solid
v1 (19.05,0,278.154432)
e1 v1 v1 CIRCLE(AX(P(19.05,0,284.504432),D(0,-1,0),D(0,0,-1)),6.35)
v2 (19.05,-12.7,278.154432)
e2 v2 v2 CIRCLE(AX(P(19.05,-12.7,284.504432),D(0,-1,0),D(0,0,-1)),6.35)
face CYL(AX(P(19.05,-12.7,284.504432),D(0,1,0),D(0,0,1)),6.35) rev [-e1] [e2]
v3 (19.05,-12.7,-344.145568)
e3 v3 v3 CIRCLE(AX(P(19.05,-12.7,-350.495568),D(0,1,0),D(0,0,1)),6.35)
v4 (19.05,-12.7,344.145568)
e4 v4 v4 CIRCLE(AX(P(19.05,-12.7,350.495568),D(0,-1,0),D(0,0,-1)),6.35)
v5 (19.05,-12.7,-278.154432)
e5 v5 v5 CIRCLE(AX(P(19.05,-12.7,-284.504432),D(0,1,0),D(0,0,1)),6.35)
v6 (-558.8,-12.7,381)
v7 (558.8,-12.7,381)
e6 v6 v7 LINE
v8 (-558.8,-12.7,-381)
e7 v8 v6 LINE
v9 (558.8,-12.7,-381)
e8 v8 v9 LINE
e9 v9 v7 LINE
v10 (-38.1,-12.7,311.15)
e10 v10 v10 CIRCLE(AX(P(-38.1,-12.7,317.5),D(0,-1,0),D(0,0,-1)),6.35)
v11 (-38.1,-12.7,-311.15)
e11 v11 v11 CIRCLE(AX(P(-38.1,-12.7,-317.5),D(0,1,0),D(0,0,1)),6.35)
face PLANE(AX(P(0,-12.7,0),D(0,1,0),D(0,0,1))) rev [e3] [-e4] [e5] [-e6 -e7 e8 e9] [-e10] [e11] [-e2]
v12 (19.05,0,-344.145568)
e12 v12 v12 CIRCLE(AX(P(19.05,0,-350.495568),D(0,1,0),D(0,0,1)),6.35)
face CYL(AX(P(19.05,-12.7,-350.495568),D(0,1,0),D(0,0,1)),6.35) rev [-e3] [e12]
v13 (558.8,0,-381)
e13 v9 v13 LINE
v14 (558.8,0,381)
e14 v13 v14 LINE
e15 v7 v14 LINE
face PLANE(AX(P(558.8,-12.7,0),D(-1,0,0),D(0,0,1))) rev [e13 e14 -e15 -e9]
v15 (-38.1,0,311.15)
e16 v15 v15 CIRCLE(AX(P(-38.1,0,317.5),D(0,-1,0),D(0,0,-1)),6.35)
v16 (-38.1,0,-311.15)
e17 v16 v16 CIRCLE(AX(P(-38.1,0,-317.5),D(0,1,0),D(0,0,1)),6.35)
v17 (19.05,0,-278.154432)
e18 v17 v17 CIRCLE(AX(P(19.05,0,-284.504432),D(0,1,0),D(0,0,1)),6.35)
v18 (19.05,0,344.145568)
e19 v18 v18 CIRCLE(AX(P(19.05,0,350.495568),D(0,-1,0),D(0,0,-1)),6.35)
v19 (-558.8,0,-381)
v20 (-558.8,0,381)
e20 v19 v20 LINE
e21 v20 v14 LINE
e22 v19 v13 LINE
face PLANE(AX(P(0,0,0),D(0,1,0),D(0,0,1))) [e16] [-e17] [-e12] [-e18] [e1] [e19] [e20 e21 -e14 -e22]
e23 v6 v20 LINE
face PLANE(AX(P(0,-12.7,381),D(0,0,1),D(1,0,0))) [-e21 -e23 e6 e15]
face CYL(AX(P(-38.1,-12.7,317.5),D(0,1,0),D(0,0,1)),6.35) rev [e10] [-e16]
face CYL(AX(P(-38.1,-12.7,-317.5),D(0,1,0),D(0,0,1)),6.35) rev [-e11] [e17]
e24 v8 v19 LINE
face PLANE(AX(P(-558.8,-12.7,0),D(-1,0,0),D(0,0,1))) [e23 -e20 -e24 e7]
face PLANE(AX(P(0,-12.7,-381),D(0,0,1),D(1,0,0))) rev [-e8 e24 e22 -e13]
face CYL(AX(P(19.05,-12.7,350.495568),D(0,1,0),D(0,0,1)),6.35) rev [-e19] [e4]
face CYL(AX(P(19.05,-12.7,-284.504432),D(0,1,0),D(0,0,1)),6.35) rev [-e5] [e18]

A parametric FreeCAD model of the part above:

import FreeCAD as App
import Part
import Sketcher

V = App.Vector
Q = App.Units.Quantity

doc = App.newDocument("Part")
body = doc.addObject("PartDesign::Body", "Body")

# Sketch on XZ plane
sketch1 = doc.addObject("Sketcher::SketchObject", "Sketch")
body.addObject(sketch1)
sketch1.AttachmentSupport = (doc.XZ_Plane, [""])
sketch1.MapMode = "FlatFace"
sketch1.addGeometry(Part.LineSegment(V(-558.8, -381, 0), V(-558.8, 381, 0)), False)
sketch1.addGeometry(Part.LineSegment(V(-558.8, 381, 0), V(558.8, 381, 0)), False)
sketch1.addGeometry(Part.LineSegment(V(558.8, 381, 0), V(558.8, -381, 0)), False)
sketch1.addGeometry(Part.LineSegment(V(558.8, -381, 0), V(-558.8, -381, 0)), False)
sketch1.addConstraint(Sketcher.Constraint("Coincident", 0, 2, 1, 1))
sketch1.addConstraint(Sketcher.Constraint("Coincident", 1, 2, 2, 1))
sketch1.addConstraint(Sketcher.Constraint("Coincident", 2, 2, 3, 1))
sketch1.addConstraint(Sketcher.Constraint("Coincident", 3, 2, 0, 1))
sketch1.addConstraint(Sketcher.Constraint("Vertical", 0))
sketch1.addConstraint(Sketcher.Constraint("Horizontal", 1))
sketch1.addConstraint(Sketcher.Constraint("Vertical", 2))
sketch1.addConstraint(Sketcher.Constraint("Horizontal", 3))
sketch1.addConstraint(Sketcher.Constraint("Symmetric", 0, 2, 2, 2, -1, 1))
sketch1.addConstraint(Sketcher.Constraint("DistanceX", 1, 1, 1, 2, Q("44 in")))
sketch1.addConstraint(Sketcher.Constraint("DistanceY", 0, 1, 0, 2, Q("30 in")))
pad1 = doc.addObject("PartDesign::Pad", "Pad")
body.addObject(pad1)
pad1.Profile = sketch1
pad1.Length = Q("0.5 in")

# Sketch on XZ plane
sketch2 = doc.addObject("Sketcher::SketchObject", "Sketch001")
body.addObject(sketch2)
sketch2.AttachmentSupport = (doc.XZ_Plane, [""])
sketch2.MapMode = "FlatFace"
sketch2.addGeometry(Part.Circle(V(-38.1, -317.5, 0), V(0, 0, 1), 6.35), False)
sketch2.addGeometry(Part.Circle(V(19.05, -350.495568, 0), V(0, 0, 1), 6.35), False)
sketch2.addGeometry(Part.Circle(V(19.05, -284.504432, 0), V(0, 0, 1), 6.35), False)
sketch2.addGeometry(Part.Circle(V(19.05, 350.495568, 0), V(0, 0, 1), 6.35), False)
sketch2.addGeometry(Part.Circle(V(19.05, 284.504432, 0), V(0, 0, 1), 6.35), False)
sketch2.addGeometry(Part.Circle(V(-38.1, 317.5, 0), V(0, 0, 1), 6.35), False)
sketch2.addConstraint(Sketcher.Constraint("Equal", 0, 1))
sketch2.addConstraint(Sketcher.Constraint("Equal", 1, 2))
sketch2.addConstraint(Sketcher.Constraint("Equal", 2, 3))
sketch2.addConstraint(Sketcher.Constraint("Equal", 3, 4))
sketch2.addConstraint(Sketcher.Constraint("Equal", 4, 5))
sketch2.addConstraint(Sketcher.Constraint("Symmetric", 1, 3, 3, 3, -1))
sketch2.addConstraint(Sketcher.Constraint("Symmetric", 2, 3, 4, 3, -1))
sketch2.addConstraint(Sketcher.Constraint("Symmetric", 0, 3, 5, 3, -1))
sketch2.addConstraint(Sketcher.Constraint("Vertical", 1, 3, 2, 3))
sketch2.addConstraint(Sketcher.Constraint("Diameter", 0, Q("0.5 in")))
sketch2.addConstraint(Sketcher.Constraint("DistanceY", 2, 3, 3, 3, Q("25 in")))
sketch2.addConstraint(Sketcher.Constraint("DistanceY", 0, 3, 5, 3, Q("25 in")))
sketch2.addConstraint(Sketcher.Constraint("DistanceX", 0, 3, -1, 1, Q("1.5 in")))
sketch2.addConstraint(Sketcher.Constraint("DistanceX", -1, 1, 1, 3, Q("0.75 in")))
sketch2.addConstraint(Sketcher.Constraint("DistanceY", 1, 3, -1, 1, Q("350.495568 mm")))
pocket1 = doc.addObject("PartDesign::Pocket", "Pocket")
body.addObject(pocket1)
pocket1.Profile = sketch2
pocket1.Length = Q("0.5 in")
pocket1.Reversed = True

doc.recompute()
